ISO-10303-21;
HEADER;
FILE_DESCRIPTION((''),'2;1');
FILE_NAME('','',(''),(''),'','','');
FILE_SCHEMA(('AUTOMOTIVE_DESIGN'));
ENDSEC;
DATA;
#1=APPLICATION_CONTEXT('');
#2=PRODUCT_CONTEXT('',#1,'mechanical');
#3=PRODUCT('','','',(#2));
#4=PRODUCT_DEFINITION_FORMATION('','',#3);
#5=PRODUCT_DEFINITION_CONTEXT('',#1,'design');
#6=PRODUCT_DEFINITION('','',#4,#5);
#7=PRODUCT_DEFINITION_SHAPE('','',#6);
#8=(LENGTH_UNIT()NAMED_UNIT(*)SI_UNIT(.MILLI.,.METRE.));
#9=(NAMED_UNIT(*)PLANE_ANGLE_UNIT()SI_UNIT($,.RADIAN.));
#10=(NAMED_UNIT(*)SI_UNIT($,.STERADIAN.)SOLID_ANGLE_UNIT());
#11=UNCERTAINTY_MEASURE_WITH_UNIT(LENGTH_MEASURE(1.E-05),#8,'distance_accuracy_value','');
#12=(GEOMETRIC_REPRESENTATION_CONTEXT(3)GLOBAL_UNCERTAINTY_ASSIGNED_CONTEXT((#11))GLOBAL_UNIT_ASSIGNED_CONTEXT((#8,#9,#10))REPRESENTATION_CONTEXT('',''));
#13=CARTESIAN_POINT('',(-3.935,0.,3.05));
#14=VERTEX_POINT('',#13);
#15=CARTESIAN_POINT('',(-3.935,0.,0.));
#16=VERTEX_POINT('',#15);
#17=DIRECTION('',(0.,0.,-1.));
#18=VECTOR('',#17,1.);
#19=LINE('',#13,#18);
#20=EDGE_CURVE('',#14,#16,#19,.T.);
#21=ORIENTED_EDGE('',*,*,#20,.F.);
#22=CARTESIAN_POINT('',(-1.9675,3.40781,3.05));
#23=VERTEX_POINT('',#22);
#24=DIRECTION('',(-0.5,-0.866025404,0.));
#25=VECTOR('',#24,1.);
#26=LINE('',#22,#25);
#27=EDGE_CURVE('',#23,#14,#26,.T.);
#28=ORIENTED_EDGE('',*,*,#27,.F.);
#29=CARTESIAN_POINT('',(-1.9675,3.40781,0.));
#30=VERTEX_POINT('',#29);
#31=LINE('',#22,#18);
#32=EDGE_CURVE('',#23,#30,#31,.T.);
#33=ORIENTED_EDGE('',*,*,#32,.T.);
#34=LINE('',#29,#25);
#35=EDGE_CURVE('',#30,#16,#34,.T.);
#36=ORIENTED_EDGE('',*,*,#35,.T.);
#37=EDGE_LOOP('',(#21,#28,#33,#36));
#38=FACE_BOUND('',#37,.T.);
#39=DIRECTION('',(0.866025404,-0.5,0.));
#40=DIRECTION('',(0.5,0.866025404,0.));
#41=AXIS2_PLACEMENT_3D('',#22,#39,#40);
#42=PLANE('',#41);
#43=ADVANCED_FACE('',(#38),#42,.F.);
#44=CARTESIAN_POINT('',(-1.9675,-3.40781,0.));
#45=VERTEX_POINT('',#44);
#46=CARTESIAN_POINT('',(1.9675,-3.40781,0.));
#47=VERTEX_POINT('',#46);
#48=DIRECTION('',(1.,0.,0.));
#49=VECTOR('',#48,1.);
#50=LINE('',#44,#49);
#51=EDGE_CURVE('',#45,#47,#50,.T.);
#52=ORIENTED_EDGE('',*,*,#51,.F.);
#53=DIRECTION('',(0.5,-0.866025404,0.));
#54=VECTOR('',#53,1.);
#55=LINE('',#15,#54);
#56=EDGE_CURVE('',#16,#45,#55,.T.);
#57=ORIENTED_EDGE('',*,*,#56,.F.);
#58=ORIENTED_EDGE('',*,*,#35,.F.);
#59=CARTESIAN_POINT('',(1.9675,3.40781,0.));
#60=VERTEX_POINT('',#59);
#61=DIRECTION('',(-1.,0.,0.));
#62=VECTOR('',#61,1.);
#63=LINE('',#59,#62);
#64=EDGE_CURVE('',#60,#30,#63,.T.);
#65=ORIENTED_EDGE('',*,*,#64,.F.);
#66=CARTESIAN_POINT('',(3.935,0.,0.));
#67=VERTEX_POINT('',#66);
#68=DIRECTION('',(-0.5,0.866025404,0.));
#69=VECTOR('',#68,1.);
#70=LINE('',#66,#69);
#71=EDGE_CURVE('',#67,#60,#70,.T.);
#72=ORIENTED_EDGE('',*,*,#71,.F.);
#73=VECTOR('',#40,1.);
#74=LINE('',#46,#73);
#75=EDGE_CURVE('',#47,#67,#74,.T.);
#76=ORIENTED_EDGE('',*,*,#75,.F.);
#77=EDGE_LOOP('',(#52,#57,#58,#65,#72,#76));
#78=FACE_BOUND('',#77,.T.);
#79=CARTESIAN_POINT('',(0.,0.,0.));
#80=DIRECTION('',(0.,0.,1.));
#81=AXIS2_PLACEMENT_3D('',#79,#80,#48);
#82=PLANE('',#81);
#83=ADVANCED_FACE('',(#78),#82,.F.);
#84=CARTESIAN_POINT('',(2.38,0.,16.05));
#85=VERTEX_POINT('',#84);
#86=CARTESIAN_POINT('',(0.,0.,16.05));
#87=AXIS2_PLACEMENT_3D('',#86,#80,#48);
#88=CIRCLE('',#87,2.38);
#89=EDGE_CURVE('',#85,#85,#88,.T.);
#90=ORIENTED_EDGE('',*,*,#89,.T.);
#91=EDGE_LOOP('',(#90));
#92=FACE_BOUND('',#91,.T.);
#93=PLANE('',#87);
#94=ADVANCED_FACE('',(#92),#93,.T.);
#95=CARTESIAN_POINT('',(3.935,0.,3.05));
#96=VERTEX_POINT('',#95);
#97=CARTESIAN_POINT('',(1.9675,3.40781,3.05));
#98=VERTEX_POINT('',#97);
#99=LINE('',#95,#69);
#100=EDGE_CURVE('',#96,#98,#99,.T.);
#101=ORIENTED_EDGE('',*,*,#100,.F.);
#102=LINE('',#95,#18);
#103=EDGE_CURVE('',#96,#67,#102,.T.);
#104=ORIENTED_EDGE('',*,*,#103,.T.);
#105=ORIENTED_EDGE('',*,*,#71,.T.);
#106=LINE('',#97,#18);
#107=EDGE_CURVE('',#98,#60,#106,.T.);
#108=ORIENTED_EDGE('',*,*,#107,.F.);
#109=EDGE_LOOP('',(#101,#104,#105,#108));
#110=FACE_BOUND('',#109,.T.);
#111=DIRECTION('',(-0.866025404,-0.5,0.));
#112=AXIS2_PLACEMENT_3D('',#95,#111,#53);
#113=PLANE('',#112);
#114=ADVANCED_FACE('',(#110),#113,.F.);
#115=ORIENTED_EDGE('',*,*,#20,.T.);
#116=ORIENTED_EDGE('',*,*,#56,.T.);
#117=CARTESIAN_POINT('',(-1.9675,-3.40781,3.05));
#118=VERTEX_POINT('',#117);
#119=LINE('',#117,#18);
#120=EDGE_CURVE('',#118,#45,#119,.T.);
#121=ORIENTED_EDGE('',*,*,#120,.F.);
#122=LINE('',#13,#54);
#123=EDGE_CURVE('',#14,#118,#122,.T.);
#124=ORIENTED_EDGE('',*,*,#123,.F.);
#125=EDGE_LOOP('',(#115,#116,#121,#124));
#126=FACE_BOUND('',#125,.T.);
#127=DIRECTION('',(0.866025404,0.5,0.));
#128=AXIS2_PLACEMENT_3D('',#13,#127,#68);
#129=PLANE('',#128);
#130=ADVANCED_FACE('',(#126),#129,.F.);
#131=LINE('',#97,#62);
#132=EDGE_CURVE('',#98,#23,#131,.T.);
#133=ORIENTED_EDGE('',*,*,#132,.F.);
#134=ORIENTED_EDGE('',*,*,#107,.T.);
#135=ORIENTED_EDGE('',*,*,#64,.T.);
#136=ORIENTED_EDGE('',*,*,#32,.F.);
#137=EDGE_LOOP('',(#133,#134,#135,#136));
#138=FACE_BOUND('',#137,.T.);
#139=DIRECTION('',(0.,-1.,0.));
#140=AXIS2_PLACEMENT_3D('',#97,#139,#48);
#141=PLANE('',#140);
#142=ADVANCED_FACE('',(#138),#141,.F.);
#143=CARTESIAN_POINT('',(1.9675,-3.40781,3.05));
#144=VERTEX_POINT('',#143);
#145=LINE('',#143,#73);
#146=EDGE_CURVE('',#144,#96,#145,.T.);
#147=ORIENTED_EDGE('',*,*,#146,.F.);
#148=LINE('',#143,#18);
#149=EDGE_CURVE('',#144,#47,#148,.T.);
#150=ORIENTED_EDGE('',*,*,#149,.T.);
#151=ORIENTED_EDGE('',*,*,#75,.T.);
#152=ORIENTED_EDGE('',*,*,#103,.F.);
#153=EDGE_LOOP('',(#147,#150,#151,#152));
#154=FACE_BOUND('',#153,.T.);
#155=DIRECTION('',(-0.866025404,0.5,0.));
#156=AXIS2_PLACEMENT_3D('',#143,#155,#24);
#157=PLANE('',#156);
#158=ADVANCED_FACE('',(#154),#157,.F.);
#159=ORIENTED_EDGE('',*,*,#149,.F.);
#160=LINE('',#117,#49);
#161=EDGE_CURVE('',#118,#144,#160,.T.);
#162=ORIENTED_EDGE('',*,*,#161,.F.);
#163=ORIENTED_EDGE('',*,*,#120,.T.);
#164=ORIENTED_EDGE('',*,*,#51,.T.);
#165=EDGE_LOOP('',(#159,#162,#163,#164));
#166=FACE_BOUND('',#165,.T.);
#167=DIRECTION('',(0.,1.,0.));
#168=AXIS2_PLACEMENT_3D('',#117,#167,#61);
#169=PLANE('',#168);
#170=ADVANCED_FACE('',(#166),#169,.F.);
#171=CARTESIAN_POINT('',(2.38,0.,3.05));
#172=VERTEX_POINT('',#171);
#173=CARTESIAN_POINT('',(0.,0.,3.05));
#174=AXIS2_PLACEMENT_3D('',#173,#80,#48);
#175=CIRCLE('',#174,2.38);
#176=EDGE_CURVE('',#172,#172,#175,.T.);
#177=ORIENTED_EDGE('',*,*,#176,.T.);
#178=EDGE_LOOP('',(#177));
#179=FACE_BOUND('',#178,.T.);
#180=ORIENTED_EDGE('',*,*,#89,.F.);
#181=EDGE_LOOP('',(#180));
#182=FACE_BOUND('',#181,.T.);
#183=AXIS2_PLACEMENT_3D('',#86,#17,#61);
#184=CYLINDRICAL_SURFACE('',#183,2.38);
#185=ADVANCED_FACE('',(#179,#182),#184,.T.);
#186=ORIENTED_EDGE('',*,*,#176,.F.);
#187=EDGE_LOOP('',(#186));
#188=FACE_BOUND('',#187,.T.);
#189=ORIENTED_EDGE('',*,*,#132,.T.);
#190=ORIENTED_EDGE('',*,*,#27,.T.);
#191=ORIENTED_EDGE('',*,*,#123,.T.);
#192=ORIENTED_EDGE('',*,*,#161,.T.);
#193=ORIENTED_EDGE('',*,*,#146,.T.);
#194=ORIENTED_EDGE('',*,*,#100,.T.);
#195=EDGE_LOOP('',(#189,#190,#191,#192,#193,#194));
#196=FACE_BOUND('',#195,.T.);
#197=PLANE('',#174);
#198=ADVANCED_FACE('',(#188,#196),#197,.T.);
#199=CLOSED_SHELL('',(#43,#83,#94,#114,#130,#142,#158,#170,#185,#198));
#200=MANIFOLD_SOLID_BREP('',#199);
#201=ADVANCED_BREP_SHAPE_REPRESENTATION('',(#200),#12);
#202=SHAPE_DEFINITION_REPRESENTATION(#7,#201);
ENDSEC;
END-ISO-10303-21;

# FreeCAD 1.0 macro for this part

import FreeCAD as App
import Part
import Sketcher

V = App.Vector
Q = App.Units.Quantity

doc = App.newDocument("Part")
body = doc.addObject("PartDesign::Body", "Body")

# Sketch on XY plane
sketch1 = body.newObject("Sketcher::SketchObject", "Sketch")
sketch1.AttachmentSupport = (doc.getObject("XY_Plane"), [""])
sketch1.MapMode = "FlatFace"
sketch1.addGeometry([
    Part.LineSegment(V(2, -3.4, 0), V(3.9, 0, 0)),  # 0
    Part.LineSegment(V(3.9, 0, 0), V(2, 3.4, 0)),  # 1
    Part.LineSegment(V(2, 3.4, 0), V(-2, 3.4, 0)),  # 2
    Part.LineSegment(V(-2, 3.4, 0), V(-3.9, 0, 0)),  # 3
    Part.LineSegment(V(-3.9, 0, 0), V(-2, -3.4, 0)),  # 4
    Part.LineSegment(V(-2, -3.4, 0), V(2, -3.4, 0)),  # 5
], False)
sketch1.addConstraint([
    Sketcher.Constraint("Coincident", 0, 2, 1, 1),
    Sketcher.Constraint("Coincident", 1, 2, 2, 1),
    Sketcher.Constraint("Coincident", 2, 2, 3, 1),
    Sketcher.Constraint("Coincident", 3, 2, 4, 1),
    Sketcher.Constraint("Coincident", 4, 2, 5, 1),
    Sketcher.Constraint("Coincident", 5, 2, 0, 1),
    Sketcher.Constraint("Horizontal", 2),
    Sketcher.Constraint("Horizontal", 5),
    Sketcher.Constraint("Symmetric", 0, 2, 3, 2, -1, 1),
    Sketcher.Constraint("Symmetric", 1, 2, 4, 2, -1, 1),
    Sketcher.Constraint("PointOnObject", 0, 2, -1),
    Sketcher.Constraint("Parallel", 0, 3),
    Sketcher.Constraint("Vertical", 2, 2, 4, 2),
    Sketcher.Constraint("Angle", 0, Q("60 deg")),
    Sketcher.Constraint("DistanceX", 2, 2, 2, 1, 3.935),
    Sketcher.Constraint("DistanceX", 3, 2, 0, 2, 7.87),
])
pad1 = body.newObject("PartDesign::Pad", "Pad")
pad1.Profile = sketch1
pad1.Length = 3.05

# Sketch on XY plane
sketch2 = body.newObject("Sketcher::SketchObject", "Sketch001")
sketch2.AttachmentSupport = (doc.getObject("XY_Plane"), [""])
sketch2.MapMode = "FlatFace"
sketch2.AttachmentOffset = App.Placement(V(0, 0, 3.05), App.Rotation())
sketch2.addGeometry(Part.Circle(V(0, 0, 0), V(0, 0, 1), 2.4), False)
sketch2.addConstraint([
    Sketcher.Constraint("Coincident", 0, 3, -1, 1),
    Sketcher.Constraint("Diameter", 0, 4.76),
])
pad2 = body.newObject("PartDesign::Pad", "Pad001")
pad2.Profile = sketch2
pad2.Length = 13

doc.recompute()
